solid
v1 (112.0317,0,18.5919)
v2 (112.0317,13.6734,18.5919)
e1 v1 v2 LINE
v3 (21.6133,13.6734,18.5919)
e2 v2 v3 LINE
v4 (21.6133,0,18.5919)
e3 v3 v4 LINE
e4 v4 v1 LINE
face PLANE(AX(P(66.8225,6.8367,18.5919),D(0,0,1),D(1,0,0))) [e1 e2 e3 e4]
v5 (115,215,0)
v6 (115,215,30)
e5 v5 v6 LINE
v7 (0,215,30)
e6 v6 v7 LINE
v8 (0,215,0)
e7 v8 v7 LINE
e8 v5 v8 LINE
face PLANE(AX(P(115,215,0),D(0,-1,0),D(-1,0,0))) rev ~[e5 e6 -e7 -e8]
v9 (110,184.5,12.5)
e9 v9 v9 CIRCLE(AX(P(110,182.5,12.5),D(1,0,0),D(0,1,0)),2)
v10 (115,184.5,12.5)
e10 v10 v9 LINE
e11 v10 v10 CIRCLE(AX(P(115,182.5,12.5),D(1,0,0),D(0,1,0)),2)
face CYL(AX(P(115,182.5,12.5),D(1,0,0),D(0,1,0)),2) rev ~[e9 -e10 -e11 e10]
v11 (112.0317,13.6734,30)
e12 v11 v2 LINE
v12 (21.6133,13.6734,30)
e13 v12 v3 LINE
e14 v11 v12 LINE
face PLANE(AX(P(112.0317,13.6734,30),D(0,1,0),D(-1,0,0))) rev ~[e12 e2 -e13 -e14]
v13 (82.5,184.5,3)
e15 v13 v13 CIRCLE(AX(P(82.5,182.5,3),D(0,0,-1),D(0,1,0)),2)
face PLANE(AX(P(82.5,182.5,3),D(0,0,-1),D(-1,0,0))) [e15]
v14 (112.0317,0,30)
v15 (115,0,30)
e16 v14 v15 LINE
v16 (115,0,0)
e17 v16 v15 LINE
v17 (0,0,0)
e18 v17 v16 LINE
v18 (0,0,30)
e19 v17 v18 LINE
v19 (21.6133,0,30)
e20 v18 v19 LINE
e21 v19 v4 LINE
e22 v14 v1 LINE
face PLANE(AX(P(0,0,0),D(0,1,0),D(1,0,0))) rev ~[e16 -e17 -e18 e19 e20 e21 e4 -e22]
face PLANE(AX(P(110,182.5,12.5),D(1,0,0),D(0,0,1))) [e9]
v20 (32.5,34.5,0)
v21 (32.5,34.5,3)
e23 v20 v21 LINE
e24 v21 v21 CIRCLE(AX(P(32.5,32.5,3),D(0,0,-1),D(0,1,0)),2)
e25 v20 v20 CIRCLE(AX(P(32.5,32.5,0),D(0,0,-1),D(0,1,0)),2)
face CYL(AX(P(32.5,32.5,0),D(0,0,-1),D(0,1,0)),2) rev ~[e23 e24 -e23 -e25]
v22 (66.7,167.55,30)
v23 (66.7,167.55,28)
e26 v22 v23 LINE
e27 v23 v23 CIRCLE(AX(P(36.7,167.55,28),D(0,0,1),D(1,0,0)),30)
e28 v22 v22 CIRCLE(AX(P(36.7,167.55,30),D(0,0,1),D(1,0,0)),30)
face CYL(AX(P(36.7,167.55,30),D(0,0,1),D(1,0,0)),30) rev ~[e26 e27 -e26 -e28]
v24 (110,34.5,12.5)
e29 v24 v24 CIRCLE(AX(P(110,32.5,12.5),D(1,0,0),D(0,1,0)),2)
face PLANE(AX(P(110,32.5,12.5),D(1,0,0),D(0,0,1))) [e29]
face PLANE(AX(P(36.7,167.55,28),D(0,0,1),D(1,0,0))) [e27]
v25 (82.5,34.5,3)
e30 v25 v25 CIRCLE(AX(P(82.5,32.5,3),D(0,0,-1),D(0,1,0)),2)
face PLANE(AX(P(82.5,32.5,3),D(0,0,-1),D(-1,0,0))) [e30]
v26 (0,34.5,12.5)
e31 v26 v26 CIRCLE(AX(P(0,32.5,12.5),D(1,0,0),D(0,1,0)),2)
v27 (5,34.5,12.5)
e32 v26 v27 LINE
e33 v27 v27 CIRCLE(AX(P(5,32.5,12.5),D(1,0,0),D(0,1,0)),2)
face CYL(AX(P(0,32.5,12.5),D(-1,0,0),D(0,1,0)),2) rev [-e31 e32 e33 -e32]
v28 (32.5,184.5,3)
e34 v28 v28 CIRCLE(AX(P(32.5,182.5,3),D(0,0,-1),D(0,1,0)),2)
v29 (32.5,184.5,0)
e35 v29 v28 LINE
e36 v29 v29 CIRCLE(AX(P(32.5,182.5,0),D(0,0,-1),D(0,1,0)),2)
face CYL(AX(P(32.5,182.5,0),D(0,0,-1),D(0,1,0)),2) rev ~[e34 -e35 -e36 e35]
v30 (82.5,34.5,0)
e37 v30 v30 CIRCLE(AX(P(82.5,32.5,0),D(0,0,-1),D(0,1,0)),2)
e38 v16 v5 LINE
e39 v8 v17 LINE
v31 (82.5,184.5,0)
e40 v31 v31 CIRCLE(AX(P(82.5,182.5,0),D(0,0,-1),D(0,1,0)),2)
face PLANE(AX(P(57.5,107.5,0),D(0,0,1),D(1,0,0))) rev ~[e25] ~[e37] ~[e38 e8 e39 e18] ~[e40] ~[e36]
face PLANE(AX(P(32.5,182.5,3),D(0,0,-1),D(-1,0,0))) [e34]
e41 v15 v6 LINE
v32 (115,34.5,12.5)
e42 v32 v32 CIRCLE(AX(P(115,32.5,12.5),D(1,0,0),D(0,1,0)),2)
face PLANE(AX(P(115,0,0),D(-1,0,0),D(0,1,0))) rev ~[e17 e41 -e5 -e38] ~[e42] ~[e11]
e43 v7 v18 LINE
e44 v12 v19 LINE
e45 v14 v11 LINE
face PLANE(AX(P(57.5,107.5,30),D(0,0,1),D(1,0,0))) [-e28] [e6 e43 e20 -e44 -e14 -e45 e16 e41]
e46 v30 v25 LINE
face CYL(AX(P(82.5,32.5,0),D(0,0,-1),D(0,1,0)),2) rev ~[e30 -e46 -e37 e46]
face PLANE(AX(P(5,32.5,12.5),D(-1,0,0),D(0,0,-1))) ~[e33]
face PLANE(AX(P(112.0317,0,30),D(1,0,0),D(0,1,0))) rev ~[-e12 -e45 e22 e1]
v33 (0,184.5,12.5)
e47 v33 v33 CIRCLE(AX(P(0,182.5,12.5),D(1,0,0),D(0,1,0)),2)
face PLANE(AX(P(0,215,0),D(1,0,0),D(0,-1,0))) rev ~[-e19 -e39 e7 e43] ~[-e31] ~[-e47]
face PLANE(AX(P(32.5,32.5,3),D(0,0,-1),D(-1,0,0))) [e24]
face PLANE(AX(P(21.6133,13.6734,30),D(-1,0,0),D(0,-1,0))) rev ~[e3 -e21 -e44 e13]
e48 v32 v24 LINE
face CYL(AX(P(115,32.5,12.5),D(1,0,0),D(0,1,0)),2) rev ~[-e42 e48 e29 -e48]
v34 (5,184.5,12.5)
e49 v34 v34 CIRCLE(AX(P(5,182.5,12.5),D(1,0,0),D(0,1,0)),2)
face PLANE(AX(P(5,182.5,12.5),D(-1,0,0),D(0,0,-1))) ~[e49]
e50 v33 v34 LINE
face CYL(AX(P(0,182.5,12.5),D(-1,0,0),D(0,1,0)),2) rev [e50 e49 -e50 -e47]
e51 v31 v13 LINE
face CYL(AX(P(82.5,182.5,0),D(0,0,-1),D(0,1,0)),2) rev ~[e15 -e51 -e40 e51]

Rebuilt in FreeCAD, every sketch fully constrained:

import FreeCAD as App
import Part
import Sketcher

V = App.Vector

doc = App.newDocument("Part")
body = doc.addObject("PartDesign::Body", "Body")

# Sketch on XY plane
sketch1 = doc.addObject("Sketcher::SketchObject", "Sketch")
body.addObject(sketch1)
sketch1.AttachmentSupport = (doc.XY_Plane, [""])
sketch1.MapMode = "FlatFace"
sketch1.addGeometry([
    Part.LineSegment(V(0, 215, 0), V(0, 0, 0)),
    Part.LineSegment(V(0, 0, 0), V(115, 0, 0)),
    Part.LineSegment(V(115, 0, 0), V(115, 215, 0)),
    Part.LineSegment(V(115, 215, 0), V(0, 215, 0)),
], False)
sketch1.addConstraint([
    Sketcher.Constraint("Coincident", 0, 2, 1, 1),
    Sketcher.Constraint("Coincident", 1, 2, 2, 1),
    Sketcher.Constraint("Coincident", 2, 2, 3, 1),
    Sketcher.Constraint("Coincident", 3, 2, 0, 1),
    Sketcher.Constraint("Vertical", 0),
    Sketcher.Constraint("Horizontal", 1),
    Sketcher.Constraint("Vertical", 2),
    Sketcher.Constraint("Horizontal", 3),
    Sketcher.Constraint("Coincident", 0, 2, -1, 1),
    Sketcher.Constraint("DistanceX", 1, 1, 1, 2, 115.0),
    Sketcher.Constraint("DistanceY", 0, 2, 0, 1, 215.0),
])
pad1 = doc.addObject("PartDesign::Pad", "Pad")
body.addObject(pad1)
pad1.Profile = sketch1
pad1.Length = 30

# Sketch on XY plane
sketch2 = doc.addObject("Sketcher::SketchObject", "Sketch001")
body.addObject(sketch2)
sketch2.AttachmentSupport = (doc.XY_Plane, [""])
sketch2.MapMode = "FlatFace"
sketch2.AttachmentOffset = App.Placement(V(0, 0, 30), App.Rotation())
sketch2.addGeometry(Part.Circle(V(37, 168, 0), V(0, 0, 1), 30), False)
sketch2.addConstraint([
    Sketcher.Constraint("Diameter", 0, 60.0),
    Sketcher.Constraint("DistanceX", -1, 1, 0, 3, 36.7),
    Sketcher.Constraint("DistanceY", -1, 1, 0, 3, 167.55),
])
pocket1 = doc.addObject("PartDesign::Pocket", "Pocket")
body.addObject(pocket1)
pocket1.Profile = sketch2
pocket1.Length = 2

# Sketch on XY plane
sketch3 = doc.addObject("Sketcher::SketchObject", "Sketch002")
body.addObject(sketch3)
sketch3.AttachmentSupport = (doc.XY_Plane, [""])
sketch3.MapMode = "FlatFace"
sketch3.addGeometry([
    Part.Circle(V(32.5, 32.5, 0), V(0, 0, 1), 2),
    Part.Circle(V(32.5, 182.5, 0), V(0, 0, 1), 2),
    Part.Circle(V(82.5, 182.5, 0), V(0, 0, 1), 2),
    Part.Circle(V(82.5, 32.5, 0), V(0, 0, 1), 2),
], False)
sketch3.addConstraint([
    Sketcher.Constraint("Equal", 0, 1),
    Sketcher.Constraint("Equal", 1, 2),
    Sketcher.Constraint("Equal", 2, 3),
    Sketcher.Constraint("Horizontal", 1, 3, 2, 3),
    Sketcher.Constraint("Horizontal", 0, 3, 3, 3),
    Sketcher.Constraint("Vertical", 0, 3, 1, 3),
    Sketcher.Constraint("Vertical", 2, 3, 3, 3),
    Sketcher.Constraint("Diameter", 0, 4.0),
    Sketcher.Constraint("DistanceY", 0, 3, 1, 3, 150.0),
    Sketcher.Constraint("DistanceX", 1, 3, 2, 3, 50.0),
    Sketcher.Constraint("DistanceX", -1, 1, 0, 3, 32.5),
    Sketcher.Constraint("DistanceY", -1, 1, 0, 3, 32.5),
])
pocket2 = doc.addObject("PartDesign::Pocket", "Pocket001")
body.addObject(pocket2)
pocket2.Profile = sketch3
pocket2.Length = 3
pocket2.Reversed = True

# Sketch on XY plane
sketch4 = doc.addObject("Sketcher::SketchObject", "Sketch003")
body.addObject(sketch4)
sketch4.AttachmentSupport = (doc.XY_Plane, [""])
sketch4.MapMode = "FlatFace"
sketch4.AttachmentOffset = App.Placement(V(0, 0, 30), App.Rotation())
sketch4.addGeometry([
    Part.LineSegment(V(22, 0, 0), V(112, 0, 0)),
    Part.LineSegment(V(112, 0, 0), V(112, 14, 0)),
    Part.LineSegment(V(112, 14, 0), V(22, 14, 0)),
    Part.LineSegment(V(22, 14, 0), V(22, 0, 0)),
], False)
sketch4.addConstraint([
    Sketcher.Constraint("Coincident", 0, 2, 1, 1),
    Sketcher.Constraint("Coincident", 1, 2, 2, 1),
    Sketcher.Constraint("Coincident", 2, 2, 3, 1),
    Sketcher.Constraint("Coincident", 3, 2, 0, 1),
    Sketcher.Constraint("Horizontal", 0),
    Sketcher.Constraint("Vertical", 1),
    Sketcher.Constraint("Horizontal", 2),
    Sketcher.Constraint("Vertical", 3),
    Sketcher.Constraint("PointOnObject", 0, 2, -1),
    Sketcher.Constraint("DistanceX", 0, 1, 0, 2, 90.4184),
    Sketcher.Constraint("DistanceY", 1, 1, 1, 2, 13.6734),
    Sketcher.Constraint("DistanceX", -1, 1, 0, 2, 112.0317),
])
pocket3 = doc.addObject("PartDesign::Pocket", "Pocket002")
body.addObject(pocket3)
pocket3.Profile = sketch4
pocket3.Length = 11.4081

# Sketch on YZ plane
sketch5 = doc.addObject("Sketcher::SketchObject", "Sketch004")
body.addObject(sketch5)
sketch5.AttachmentSupport = (doc.YZ_Plane, [""])
sketch5.MapMode = "FlatFace"
sketch5.AttachmentOffset = App.Placement(V(0, 0, 115), App.Rotation())
sketch5.addGeometry([
    Part.Circle(V(32.5, 12.5, 0), V(0, 0, 1), 2),
    Part.Circle(V(182.5, 12.5, 0), V(0, 0, 1), 2),
], False)
sketch5.addConstraint([
    Sketcher.Constraint("Equal", 0, 1),
    Sketcher.Constraint("Horizontal", 0, 3, 1, 3),
    Sketcher.Constraint("Diameter", 0, 4.0),
    Sketcher.Constraint("DistanceX", 0, 3, 1, 3, 150.0),
    Sketcher.Constraint("DistanceX", -1, 1, 0, 3, 32.5),
    Sketcher.Constraint("DistanceY", -1, 1, 0, 3, 12.5),
])
pocket4 = doc.addObject("PartDesign::Pocket", "Pocket003")
body.addObject(pocket4)
pocket4.Profile = sketch5
pocket4.Length = 5
doc.recompute()

datumplane = doc.addObject("PartDesign::Plane", "DatumPlane")
body.addObject(datumplane)
datumplane.AttachmentSupport = (doc.YZ_Plane, [""])
datumplane.MapMode = "FlatFace"
datumplane.AttachmentOffset = App.Placement(V(0, 0, 57.5), App.Rotation())
mirrored = doc.addObject("PartDesign::Mirrored", "Mirrored")
body.addObject(mirrored)
mirrored.Originals = [pocket4]
mirrored.MirrorPlane = (datumplane, [""])
body.Tip = mirrored

doc.recompute()
